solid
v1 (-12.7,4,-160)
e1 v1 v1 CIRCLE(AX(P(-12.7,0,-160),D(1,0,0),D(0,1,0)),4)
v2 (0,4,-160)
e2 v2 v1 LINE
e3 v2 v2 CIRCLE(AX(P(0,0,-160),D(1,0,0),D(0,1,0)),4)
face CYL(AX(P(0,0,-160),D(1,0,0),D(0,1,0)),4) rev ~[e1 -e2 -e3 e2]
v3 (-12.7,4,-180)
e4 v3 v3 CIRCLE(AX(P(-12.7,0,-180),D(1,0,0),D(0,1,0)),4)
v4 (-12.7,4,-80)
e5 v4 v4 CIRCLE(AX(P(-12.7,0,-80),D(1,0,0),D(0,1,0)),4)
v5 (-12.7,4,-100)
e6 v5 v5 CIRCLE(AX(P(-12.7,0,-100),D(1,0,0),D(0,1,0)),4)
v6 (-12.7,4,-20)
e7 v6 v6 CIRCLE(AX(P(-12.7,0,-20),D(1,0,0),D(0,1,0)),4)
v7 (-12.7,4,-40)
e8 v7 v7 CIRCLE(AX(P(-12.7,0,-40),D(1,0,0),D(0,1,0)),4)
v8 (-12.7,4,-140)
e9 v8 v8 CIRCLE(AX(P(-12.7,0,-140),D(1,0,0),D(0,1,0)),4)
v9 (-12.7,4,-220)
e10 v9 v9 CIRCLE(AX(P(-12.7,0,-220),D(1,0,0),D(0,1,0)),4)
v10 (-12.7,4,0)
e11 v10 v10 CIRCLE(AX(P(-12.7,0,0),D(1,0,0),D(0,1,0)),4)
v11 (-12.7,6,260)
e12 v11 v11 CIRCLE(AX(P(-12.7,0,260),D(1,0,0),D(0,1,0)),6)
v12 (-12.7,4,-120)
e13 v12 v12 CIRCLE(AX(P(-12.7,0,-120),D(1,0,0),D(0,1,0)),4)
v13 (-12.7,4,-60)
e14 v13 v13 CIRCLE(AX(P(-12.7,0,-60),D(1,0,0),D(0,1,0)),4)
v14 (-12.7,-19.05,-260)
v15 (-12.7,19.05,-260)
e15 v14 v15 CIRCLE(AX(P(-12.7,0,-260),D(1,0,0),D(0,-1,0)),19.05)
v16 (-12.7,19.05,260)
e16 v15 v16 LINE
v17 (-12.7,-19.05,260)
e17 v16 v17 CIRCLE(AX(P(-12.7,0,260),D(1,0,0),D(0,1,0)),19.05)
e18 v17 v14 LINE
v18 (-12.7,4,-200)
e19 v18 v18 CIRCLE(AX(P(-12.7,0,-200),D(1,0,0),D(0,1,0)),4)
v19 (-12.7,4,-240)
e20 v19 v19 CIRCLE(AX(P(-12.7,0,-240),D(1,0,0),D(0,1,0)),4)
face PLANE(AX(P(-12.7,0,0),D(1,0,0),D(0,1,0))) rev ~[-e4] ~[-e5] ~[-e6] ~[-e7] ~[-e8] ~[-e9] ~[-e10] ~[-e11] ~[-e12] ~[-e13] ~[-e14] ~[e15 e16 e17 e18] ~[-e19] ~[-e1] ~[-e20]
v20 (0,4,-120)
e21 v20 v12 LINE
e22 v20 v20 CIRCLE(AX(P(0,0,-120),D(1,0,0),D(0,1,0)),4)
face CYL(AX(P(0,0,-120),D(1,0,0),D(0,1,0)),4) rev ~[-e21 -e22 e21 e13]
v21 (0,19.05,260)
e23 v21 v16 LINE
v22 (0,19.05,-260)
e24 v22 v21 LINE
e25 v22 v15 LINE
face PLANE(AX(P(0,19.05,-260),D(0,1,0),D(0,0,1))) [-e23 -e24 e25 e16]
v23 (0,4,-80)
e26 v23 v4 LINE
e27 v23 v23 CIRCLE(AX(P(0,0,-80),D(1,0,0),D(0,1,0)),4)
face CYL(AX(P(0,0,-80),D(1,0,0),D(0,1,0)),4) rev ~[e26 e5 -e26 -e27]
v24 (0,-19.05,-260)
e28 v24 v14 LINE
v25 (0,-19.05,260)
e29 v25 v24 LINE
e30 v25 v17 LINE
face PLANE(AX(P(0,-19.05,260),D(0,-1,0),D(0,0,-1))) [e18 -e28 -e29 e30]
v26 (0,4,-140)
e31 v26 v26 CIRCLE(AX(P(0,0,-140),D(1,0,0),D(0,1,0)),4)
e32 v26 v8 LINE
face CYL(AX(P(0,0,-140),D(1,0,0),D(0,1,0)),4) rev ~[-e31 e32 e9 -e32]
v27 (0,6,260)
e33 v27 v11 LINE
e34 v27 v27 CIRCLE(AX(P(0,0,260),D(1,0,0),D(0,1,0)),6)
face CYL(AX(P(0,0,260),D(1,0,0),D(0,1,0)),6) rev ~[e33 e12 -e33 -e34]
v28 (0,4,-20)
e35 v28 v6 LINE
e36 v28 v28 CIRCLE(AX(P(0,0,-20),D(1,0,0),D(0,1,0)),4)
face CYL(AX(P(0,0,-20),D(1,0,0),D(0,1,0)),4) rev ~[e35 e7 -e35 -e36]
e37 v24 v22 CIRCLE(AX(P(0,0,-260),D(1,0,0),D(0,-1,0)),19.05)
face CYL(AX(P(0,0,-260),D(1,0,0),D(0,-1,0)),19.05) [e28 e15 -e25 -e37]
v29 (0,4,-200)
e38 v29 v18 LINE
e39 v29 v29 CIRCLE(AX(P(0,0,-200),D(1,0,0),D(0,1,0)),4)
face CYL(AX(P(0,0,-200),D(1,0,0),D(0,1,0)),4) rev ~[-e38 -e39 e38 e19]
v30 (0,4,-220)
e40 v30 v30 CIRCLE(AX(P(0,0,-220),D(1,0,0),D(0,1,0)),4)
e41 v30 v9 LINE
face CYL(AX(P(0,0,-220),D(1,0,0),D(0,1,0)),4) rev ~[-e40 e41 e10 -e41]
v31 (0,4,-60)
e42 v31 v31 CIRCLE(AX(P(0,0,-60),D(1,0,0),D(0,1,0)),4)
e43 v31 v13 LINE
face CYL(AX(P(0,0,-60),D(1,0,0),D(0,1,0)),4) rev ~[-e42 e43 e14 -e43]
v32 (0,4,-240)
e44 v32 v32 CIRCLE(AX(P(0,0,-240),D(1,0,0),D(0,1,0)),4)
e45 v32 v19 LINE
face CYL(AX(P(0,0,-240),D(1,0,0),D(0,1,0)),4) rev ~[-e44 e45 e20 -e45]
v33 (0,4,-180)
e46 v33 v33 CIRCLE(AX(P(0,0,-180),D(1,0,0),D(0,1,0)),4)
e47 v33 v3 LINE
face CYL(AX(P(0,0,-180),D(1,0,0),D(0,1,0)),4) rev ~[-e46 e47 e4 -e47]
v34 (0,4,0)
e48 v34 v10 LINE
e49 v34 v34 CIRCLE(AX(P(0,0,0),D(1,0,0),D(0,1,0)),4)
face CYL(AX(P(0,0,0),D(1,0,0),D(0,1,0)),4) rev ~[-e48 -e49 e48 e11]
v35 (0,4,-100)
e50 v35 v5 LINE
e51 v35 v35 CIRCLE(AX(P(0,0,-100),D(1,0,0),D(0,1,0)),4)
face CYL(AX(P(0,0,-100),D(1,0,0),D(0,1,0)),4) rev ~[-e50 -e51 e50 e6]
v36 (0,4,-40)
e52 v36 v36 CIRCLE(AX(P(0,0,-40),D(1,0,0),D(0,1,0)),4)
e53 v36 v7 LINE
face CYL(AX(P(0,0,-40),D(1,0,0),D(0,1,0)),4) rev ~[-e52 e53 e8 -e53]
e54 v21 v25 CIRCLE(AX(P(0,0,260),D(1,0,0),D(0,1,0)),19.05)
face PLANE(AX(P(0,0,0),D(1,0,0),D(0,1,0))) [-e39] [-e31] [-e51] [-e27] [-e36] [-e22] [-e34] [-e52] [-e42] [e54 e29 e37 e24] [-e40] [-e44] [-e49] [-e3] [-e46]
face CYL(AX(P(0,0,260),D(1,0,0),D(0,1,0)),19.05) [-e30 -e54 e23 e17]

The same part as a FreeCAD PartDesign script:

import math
import FreeCAD as App
import Part
import Sketcher

V = App.Vector

doc = App.newDocument("Part")
body = doc.addObject("PartDesign::Body", "Body")

sketch1 = doc.addObject("Sketcher::SketchObject", "Sketch")
body.addObject(sketch1)
sketch1.AttachmentSupport = (doc.YZ_Plane, [""])
sketch1.MapMode = "FlatFace"
sketch1.addGeometry(Part.ArcOfCircle(Part.Circle(V(0, 260, 0), V(0, 0, 1), 19.05), math.radians(0), math.radians(180)), False)
sketch1.addGeometry(Part.LineSegment(V(-19.05, 260, 0), V(-19.05, -260, 0)), False)
sketch1.addGeometry(Part.ArcOfCircle(Part.Circle(V(0, -260, 0), V(0, 0, 1), 19.05), math.radians(180), math.radians(360)), False)
sketch1.addGeometry(Part.LineSegment(V(19.05, -260, 0), V(19.05, 260, 0)), False)
sketch1.addGeometry(Part.Circle(V(0, -240, 0), V(0, 0, 1), 4), False)
sketch1.addGeometry(Part.Circle(V(0, -220, 0), V(0, 0, 1), 4), False)
sketch1.addGeometry(Part.Circle(V(0, -200, 0), V(0, 0, 1), 4), False)
sketch1.addGeometry(Part.Circle(V(0, -180, 0), V(0, 0, 1), 4), False)
sketch1.addGeometry(Part.Circle(V(0, -160, 0), V(0, 0, 1), 4), False)
sketch1.addGeometry(Part.Circle(V(0, -140, 0), V(0, 0, 1), 4), False)
sketch1.addGeometry(Part.Circle(V(0, -120, 0), V(0, 0, 1), 4), False)
sketch1.addGeometry(Part.Circle(V(0, -100, 0), V(0, 0, 1), 4), False)
sketch1.addGeometry(Part.Circle(V(0, -80, 0), V(0, 0, 1), 4), False)
sketch1.addGeometry(Part.Circle(V(0, -60, 0), V(0, 0, 1), 4), False)
sketch1.addGeometry(Part.Circle(V(0, -40, 0), V(0, 0, 1), 4), False)
sketch1.addGeometry(Part.Circle(V(0, -20, 0), V(0, 0, 1), 4), False)
sketch1.addGeometry(Part.Circle(V(0, 0, 0), V(0, 0, 1), 4), False)
sketch1.addGeometry(Part.Circle(V(0, 260, 0), V(0, 0, 1), 6), False)
sketch1.addConstraint(Sketcher.Constraint("Tangent", 0, 2, 1, 1))
sketch1.addConstraint(Sketcher.Constraint("Tangent", 1, 2, 2, 1))
sketch1.addConstraint(Sketcher.Constraint("Tangent", 2, 2, 3, 1))
sketch1.addConstraint(Sketcher.Constraint("Tangent", 3, 2, 0, 1))
sketch1.addConstraint(Sketcher.Constraint("Vertical", 1))
sketch1.addConstraint(Sketcher.Constraint("Vertical", 3))
sketch1.addConstraint(Sketcher.Constraint("Coincident", 16, 3, -1, 1))
sketch1.addConstraint(Sketcher.Constraint("Coincident", 17, 3, 0, 3))
sketch1.addConstraint(Sketcher.Constraint("Equal", 4, 5))
sketch1.addConstraint(Sketcher.Constraint("Equal", 5, 6))
sketch1.addConstraint(Sketcher.Constraint("Equal", 6, 7))
sketch1.addConstraint(Sketcher.Constraint("Equal", 7, 8))
sketch1.addConstraint(Sketcher.Constraint("Equal", 8, 9))
sketch1.addConstraint(Sketcher.Constraint("Equal", 9, 10))
sketch1.addConstraint(Sketcher.Constraint("Equal", 10, 11))
sketch1.addConstraint(Sketcher.Constraint("Equal", 11, 12))
sketch1.addConstraint(Sketcher.Constraint("Equal", 12, 13))
sketch1.addConstraint(Sketcher.Constraint("Equal", 13, 14))
sketch1.addConstraint(Sketcher.Constraint("Equal", 14, 15))
sketch1.addConstraint(Sketcher.Constraint("Equal", 15, 16))
sketch1.addConstraint(Sketcher.Constraint("Symmetric", 0, 3, 2, 3, -1, 1))
sketch1.addConstraint(Sketcher.Constraint("PointOnObject", 4, 3, -2))
sketch1.addConstraint(Sketcher.Constraint("PointOnObject", 5, 3, -2))
sketch1.addConstraint(Sketcher.Constraint("PointOnObject", 6, 3, -2))
sketch1.addConstraint(Sketcher.Constraint("PointOnObject", 7, 3, -2))
sketch1.addConstraint(Sketcher.Constraint("PointOnObject", 8, 3, -2))
sketch1.addConstraint(Sketcher.Constraint("PointOnObject", 9, 3, -2))
sketch1.addConstraint(Sketcher.Constraint("PointOnObject", 10, 3, -2))
sketch1.addConstraint(Sketcher.Constraint("PointOnObject", 11, 3, -2))
sketch1.addConstraint(Sketcher.Constraint("PointOnObject", 12, 3, -2))
sketch1.addConstraint(Sketcher.Constraint("PointOnObject", 13, 3, -2))
sketch1.addConstraint(Sketcher.Constraint("PointOnObject", 14, 3, -2))
sketch1.addConstraint(Sketcher.Constraint("PointOnObject", 15, 3, -2))
sketch1.addConstraint(Sketcher.Constraint("Diameter", 4, 8.0))
sketch1.addConstraint(Sketcher.Constraint("Diameter", 17, 12.0))
sketch1.addConstraint(Sketcher.Constraint("DistanceY", 1, 2, 1, 1, 520.0))
sketch1.addConstraint(Sketcher.Constraint("Radius", 0, 19.05))
sketch1.addConstraint(Sketcher.Constraint("DistanceY", 4, 3, -1, 1, 240.0))
sketch1.addConstraint(Sketcher.Constraint("DistanceY", 5, 3, -1, 1, 220.0))
sketch1.addConstraint(Sketcher.Constraint("DistanceY", 6, 3, -1, 1, 200.0))
sketch1.addConstraint(Sketcher.Constraint("DistanceY", 7, 3, -1, 1, 180.0))
sketch1.addConstraint(Sketcher.Constraint("DistanceY", 8, 3, -1, 1, 160.0))
sketch1.addConstraint(Sketcher.Constraint("DistanceY", 9, 3, -1, 1, 140.0))
sketch1.addConstraint(Sketcher.Constraint("DistanceY", 10, 3, -1, 1, 120.0))
sketch1.addConstraint(Sketcher.Constraint("DistanceY", 11, 3, -1, 1, 100.0))
sketch1.addConstraint(Sketcher.Constraint("DistanceY", 12, 3, -1, 1, 80.0))
sketch1.addConstraint(Sketcher.Constraint("DistanceY", 13, 3, -1, 1, 60.0))
sketch1.addConstraint(Sketcher.Constraint("DistanceY", 14, 3, -1, 1, 40.0))
sketch1.addConstraint(Sketcher.Constraint("DistanceY", 15, 3, -1, 1, 20.0))
pad1 = doc.addObject("PartDesign::Pad", "Pad")
body.addObject(pad1)
pad1.Profile = sketch1
pad1.Length = 12.7
pad1.Reversed = True

doc.recompute()
